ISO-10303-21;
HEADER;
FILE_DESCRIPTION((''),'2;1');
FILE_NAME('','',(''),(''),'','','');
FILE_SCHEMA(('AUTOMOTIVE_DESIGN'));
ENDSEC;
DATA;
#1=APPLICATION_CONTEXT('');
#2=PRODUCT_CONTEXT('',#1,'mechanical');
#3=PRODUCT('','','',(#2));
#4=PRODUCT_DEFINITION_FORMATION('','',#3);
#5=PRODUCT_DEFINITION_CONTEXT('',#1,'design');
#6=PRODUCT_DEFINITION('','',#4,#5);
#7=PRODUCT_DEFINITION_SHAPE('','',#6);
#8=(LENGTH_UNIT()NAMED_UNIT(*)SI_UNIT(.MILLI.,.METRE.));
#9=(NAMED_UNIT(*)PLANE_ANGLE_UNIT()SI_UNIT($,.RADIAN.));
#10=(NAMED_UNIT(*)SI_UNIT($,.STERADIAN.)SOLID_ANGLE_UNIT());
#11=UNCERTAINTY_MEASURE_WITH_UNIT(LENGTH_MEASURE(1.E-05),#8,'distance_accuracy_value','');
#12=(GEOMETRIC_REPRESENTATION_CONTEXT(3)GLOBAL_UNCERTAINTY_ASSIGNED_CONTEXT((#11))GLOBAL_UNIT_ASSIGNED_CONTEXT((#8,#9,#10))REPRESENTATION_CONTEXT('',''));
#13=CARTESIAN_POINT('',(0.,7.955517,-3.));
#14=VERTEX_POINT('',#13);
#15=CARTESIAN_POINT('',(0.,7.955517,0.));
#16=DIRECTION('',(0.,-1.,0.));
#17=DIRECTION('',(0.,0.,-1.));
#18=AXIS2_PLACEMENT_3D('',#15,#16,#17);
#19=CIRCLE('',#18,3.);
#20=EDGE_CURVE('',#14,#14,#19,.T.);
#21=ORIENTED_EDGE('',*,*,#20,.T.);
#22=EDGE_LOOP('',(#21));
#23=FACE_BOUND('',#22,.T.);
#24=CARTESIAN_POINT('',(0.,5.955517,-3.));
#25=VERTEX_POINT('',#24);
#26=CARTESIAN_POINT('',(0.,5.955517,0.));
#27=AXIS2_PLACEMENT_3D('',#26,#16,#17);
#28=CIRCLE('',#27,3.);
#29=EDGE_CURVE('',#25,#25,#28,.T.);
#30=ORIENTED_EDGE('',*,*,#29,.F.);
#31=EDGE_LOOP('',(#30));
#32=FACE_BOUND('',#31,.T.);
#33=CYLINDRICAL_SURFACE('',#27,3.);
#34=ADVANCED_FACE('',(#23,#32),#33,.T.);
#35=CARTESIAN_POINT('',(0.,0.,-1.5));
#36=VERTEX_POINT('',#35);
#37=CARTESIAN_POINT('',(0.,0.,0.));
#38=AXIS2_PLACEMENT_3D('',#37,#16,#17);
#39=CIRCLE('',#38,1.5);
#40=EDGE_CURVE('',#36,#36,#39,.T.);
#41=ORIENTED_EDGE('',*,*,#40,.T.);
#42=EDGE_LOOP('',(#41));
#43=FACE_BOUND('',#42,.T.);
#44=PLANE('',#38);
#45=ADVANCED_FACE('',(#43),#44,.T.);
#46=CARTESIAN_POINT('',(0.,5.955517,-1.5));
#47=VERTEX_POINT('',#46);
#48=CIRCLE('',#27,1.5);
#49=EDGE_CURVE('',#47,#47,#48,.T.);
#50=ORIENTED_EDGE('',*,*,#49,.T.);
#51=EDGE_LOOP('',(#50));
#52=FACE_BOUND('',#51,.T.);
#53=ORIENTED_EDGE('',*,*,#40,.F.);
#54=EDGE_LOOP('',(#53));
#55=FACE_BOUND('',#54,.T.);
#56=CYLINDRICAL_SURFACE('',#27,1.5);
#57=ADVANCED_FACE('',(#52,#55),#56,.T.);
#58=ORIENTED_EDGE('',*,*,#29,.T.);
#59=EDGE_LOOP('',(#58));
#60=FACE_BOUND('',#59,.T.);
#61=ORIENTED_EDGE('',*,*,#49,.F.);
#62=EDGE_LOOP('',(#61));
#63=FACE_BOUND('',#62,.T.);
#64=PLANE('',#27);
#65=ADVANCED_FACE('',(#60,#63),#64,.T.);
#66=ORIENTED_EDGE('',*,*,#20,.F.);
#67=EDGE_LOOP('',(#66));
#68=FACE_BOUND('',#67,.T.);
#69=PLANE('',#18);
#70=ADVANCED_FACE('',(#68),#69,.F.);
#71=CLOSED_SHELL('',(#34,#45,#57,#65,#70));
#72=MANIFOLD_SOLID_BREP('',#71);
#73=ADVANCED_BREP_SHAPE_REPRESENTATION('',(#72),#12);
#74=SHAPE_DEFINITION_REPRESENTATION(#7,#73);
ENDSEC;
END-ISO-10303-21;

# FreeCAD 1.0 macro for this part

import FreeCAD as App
import Part
import Sketcher


def add_polygon(sketch, points):
    """Adds a closed chain of lines whose ends are joined by coincident constraints."""
    first, n = sketch.GeometryCount, len(points)
    for a, b in zip(points, points[1:] + points[:1]):
        sketch.addGeometry(Part.LineSegment(App.Vector(*a, 0), App.Vector(*b, 0)), False)
    for i in range(n):
        sketch.addConstraint(Sketcher.Constraint("Coincident", first + i, 2, first + (i + 1) % n, 1))

doc = App.newDocument("Part")
body = doc.addObject("PartDesign::Body", "Body")

# Sketch on XY plane
sketch1 = doc.addObject("Sketcher::SketchObject", "Sketch")
body.addObject(sketch1)
sketch1.AttachmentSupport = (doc.XY_Plane, [""])
sketch1.MapMode = "FlatFace"
add_polygon(sketch1, [(0, 8), (0, 0), (1.5, 0), (1.5, 6), (3, 6), (3, 8)])  # lines 0-5
sketch1.addConstraint([
    Sketcher.Constraint("Vertical", 0),
    Sketcher.Constraint("Horizontal", 1),
    Sketcher.Constraint("Vertical", 2),
    Sketcher.Constraint("Horizontal", 3),
    Sketcher.Constraint("Vertical", 4),
    Sketcher.Constraint("Horizontal", 5),
    Sketcher.Constraint("Coincident", 0, 2, -1, 1),
    Sketcher.Constraint("Equal", 1, 3),
    Sketcher.Constraint("DistanceX", 5, 2, 5, 1, 3.0),
    Sketcher.Constraint("DistanceY", 4, 1, 4, 2, 2.0),
    Sketcher.Constraint("DistanceY", 0, 2, 0, 1, 7.955517),
])
revolution = doc.addObject("PartDesign::Revolution", "Revolution")
body.addObject(revolution)
revolution.Profile = sketch1
revolution.ReferenceAxis = (sketch1, ["V_Axis"])
revolution.Angle = 360

doc.recompute()
